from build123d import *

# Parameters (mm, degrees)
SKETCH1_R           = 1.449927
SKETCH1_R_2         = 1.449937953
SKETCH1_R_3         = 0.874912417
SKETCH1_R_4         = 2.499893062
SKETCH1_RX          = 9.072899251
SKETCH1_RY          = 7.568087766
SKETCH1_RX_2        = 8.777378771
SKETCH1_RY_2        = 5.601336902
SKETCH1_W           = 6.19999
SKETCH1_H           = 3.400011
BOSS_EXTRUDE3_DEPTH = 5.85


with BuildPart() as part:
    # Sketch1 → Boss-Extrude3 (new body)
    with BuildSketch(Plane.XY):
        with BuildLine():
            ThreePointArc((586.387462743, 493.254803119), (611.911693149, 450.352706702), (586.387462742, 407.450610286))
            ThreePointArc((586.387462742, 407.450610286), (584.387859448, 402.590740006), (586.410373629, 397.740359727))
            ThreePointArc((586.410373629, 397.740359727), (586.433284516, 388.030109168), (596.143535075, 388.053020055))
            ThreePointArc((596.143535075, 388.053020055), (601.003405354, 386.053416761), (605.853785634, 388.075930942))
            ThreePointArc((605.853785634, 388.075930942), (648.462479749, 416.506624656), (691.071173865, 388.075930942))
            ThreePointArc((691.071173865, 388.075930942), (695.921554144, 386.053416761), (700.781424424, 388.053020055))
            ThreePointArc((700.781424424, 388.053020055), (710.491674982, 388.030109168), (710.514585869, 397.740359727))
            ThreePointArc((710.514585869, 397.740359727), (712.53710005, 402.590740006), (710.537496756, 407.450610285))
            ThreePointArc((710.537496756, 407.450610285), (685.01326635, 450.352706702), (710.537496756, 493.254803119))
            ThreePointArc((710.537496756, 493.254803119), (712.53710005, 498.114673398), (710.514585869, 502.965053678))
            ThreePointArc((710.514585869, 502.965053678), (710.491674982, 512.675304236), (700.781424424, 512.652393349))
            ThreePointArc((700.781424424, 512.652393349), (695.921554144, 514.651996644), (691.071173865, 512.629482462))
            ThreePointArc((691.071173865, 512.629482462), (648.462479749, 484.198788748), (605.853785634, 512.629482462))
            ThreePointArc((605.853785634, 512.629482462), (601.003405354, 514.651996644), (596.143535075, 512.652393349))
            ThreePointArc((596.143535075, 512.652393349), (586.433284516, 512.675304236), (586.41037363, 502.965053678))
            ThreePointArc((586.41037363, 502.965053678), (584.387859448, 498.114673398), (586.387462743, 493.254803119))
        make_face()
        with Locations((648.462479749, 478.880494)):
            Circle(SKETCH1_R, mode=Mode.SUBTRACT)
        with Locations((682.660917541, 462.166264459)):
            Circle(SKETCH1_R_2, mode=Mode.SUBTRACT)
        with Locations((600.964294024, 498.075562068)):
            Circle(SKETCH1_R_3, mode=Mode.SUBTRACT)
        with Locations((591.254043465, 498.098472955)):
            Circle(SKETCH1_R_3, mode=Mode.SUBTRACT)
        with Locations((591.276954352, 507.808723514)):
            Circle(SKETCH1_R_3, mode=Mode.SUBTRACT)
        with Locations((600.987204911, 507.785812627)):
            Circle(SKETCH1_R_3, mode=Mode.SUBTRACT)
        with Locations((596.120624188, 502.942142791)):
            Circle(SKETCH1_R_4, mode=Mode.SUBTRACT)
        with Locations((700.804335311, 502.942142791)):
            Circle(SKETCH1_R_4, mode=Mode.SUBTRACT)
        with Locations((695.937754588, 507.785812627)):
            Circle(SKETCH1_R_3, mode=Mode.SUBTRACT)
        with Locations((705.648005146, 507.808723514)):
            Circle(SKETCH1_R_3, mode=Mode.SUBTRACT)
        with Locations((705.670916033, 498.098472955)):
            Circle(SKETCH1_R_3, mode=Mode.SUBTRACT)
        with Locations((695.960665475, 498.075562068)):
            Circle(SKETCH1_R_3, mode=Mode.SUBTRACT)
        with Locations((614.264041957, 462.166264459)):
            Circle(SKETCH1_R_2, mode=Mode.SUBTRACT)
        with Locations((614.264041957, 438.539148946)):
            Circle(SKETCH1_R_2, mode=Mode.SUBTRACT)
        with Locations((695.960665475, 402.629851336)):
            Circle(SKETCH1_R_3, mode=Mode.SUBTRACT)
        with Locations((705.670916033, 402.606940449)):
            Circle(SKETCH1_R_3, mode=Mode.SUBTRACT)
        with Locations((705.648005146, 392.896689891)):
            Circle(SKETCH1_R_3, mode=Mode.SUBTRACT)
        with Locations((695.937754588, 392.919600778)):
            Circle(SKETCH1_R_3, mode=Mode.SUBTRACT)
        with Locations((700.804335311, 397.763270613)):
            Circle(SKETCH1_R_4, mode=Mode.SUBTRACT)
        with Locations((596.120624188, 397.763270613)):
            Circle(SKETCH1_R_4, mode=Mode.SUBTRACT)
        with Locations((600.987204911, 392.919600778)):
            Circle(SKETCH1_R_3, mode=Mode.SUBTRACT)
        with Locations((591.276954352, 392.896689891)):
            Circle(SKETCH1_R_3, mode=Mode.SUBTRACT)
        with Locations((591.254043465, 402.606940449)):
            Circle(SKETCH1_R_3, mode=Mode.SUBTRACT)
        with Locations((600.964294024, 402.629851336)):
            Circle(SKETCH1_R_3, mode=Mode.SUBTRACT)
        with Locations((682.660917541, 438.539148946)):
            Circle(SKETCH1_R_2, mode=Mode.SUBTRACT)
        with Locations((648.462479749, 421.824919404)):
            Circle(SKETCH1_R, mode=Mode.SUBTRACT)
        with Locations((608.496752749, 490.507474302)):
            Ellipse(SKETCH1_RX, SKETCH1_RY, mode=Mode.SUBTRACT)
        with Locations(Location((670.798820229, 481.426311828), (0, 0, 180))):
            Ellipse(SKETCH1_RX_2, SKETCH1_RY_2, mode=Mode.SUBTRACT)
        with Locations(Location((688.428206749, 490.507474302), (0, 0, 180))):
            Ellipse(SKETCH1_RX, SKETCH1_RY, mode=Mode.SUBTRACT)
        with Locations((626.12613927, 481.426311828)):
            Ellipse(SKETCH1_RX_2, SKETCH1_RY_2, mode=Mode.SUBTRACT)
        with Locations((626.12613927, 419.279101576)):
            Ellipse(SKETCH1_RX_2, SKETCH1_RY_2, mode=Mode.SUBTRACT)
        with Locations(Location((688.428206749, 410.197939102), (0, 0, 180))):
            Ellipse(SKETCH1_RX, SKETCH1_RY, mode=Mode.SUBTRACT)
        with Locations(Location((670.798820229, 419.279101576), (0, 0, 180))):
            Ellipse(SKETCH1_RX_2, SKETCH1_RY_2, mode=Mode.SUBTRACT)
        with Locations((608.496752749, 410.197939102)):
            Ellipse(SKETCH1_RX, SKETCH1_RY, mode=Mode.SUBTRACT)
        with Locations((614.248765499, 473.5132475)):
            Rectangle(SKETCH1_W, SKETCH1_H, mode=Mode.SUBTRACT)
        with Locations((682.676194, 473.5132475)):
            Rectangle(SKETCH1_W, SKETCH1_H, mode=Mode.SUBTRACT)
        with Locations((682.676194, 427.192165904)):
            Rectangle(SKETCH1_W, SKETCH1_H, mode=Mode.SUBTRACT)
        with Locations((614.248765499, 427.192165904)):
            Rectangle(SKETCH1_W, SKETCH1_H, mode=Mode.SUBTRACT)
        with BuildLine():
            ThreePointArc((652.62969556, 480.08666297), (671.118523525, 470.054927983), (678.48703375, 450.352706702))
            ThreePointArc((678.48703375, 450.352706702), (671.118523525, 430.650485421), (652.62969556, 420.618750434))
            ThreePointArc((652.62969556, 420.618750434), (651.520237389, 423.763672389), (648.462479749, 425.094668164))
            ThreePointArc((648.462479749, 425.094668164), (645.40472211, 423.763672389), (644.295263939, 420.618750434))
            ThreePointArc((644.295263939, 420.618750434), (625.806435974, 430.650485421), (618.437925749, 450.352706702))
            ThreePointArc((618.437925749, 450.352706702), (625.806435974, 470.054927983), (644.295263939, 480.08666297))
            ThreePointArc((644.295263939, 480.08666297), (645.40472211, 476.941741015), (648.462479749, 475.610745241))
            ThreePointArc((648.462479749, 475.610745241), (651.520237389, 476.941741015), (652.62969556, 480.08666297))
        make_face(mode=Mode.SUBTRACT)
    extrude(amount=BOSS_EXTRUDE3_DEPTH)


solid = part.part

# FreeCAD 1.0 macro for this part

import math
import FreeCAD as App
import Part
import Sketcher
from FreeCAD import Vector

doc = App.newDocument("Part")
body = doc.addObject("PartDesign::Body", "Body")

# Sketch on XY plane
sketch1 = body.newObject("Sketcher::SketchObject", "Sketch")
sketch1.AttachmentSupport = (doc.getObject("XY_Plane"), [""])
sketch1.MapMode = "FlatFace"
sketch1.addGeometry([
    Part.ArcOfCircle(Part.Circle(Vector(563.093841, 450.352707, 0), Vector(0, 0, 1), 48.817852), math.radians(-61.500326), math.radians(61.500326)),  # 0
    Part.ArcOfCircle(Part.Circle(Vector(591.254043, 402.60694, 0), Vector(0, 0, 1), 6.866203), math.radians(135.135186), math.radians(225.135186)),  # 1
    Part.ArcOfCircle(Part.Circle(Vector(591.276954, 392.89669, 0), Vector(0, 0, 1), 6.866203), math.radians(135.135186), math.radians(315.135186)),  # 2
    Part.ArcOfCircle(Part.Circle(Vector(600.987205, 392.919601, 0), Vector(0, 0, 1), 6.866203), math.radians(-134.864814), math.radians(-44.864814)),  # 3
    Part.ArcOfCircle(Part.Circle(Vector(648.46248, 370.362743, 0), Vector(0, 0, 1), 46.143882), math.radians(22.573521), math.radians(157.426479)),  # 4
    Part.ArcOfCircle(Part.Circle(Vector(695.937755, 392.919601, 0), Vector(0, 0, 1), 6.866203), math.radians(-135.135186), math.radians(-45.135186)),  # 5
    Part.ArcOfCircle(Part.Circle(Vector(705.648005, 392.89669, 0), Vector(0, 0, 1), 6.866203), math.radians(-135.135186), math.radians(44.864814)),  # 6
    Part.ArcOfCircle(Part.Circle(Vector(705.670916, 402.60694, 0), Vector(0, 0, 1), 6.866203), math.radians(-45.135186), math.radians(44.864814)),  # 7
    Part.ArcOfCircle(Part.Circle(Vector(733.831119, 450.352707, 0), Vector(0, 0, 1), 48.817852), math.radians(118.499674), math.radians(241.500326)),  # 8
    Part.ArcOfCircle(Part.Circle(Vector(705.670916, 498.098473, 0), Vector(0, 0, 1), 6.866203), math.radians(-44.864814), math.radians(45.135186)),  # 9
    Part.ArcOfCircle(Part.Circle(Vector(705.648005, 507.808724, 0), Vector(0, 0, 1), 6.866203), math.radians(-44.864814), math.radians(135.135186)),  # 10
    Part.ArcOfCircle(Part.Circle(Vector(695.937755, 507.785813, 0), Vector(0, 0, 1), 6.866203), math.radians(45.135186), math.radians(135.135187)),  # 11
    Part.ArcOfCircle(Part.Circle(Vector(648.46248, 530.342671, 0), Vector(0, 0, 1), 46.143882), math.radians(-157.426479), math.radians(-22.573521)),  # 12
    Part.ArcOfCircle(Part.Circle(Vector(600.987205, 507.785813, 0), Vector(0, 0, 1), 6.866203), math.radians(44.864813), math.radians(134.864814)),  # 13
    Part.ArcOfCircle(Part.Circle(Vector(591.276954, 507.808724, 0), Vector(0, 0, 1), 6.866203), math.radians(44.864814), math.radians(224.864814)),  # 14
    Part.ArcOfCircle(Part.Circle(Vector(591.254043, 498.098473, 0), Vector(0, 0, 1), 6.866203), math.radians(134.864813), math.radians(224.864814)),  # 15
    Part.Circle(Vector(591.276954, 392.89669, 0), Vector(0, 0, 1), 0.874912),  # 16
    Part.Circle(Vector(596.120624, 397.763271, 0), Vector(0, 0, 1), 2.499893),  # 17
    Part.Circle(Vector(600.987205, 392.919601, 0), Vector(0, 0, 1), 0.874912),  # 18
    Part.Circle(Vector(591.254043, 402.60694, 0), Vector(0, 0, 1), 0.874912),  # 19
    Part.Circle(Vector(600.964294, 402.629851, 0), Vector(0, 0, 1), 0.874912),  # 20
    Part.Ellipse(Vector(617.569652, 410.197939, 0), Vector(608.496753, 417.766027, 0), Vector(608.496753, 410.197939, 0)),  # 21
    Part.Ellipse(Vector(634.903518, 419.279102, 0), Vector(626.126139, 424.880438, 0), Vector(626.126139, 419.279102, 0)),  # 22
    Part.LineSegment(Vector(617.34876, 425.49216, 0), Vector(611.14877, 425.49216, 0)),  # 23
    Part.LineSegment(Vector(611.14877, 425.49216, 0), Vector(611.14877, 428.892171, 0)),  # 24
    Part.LineSegment(Vector(611.14877, 428.892171, 0), Vector(617.34876, 428.892171, 0)),  # 25
    Part.LineSegment(Vector(617.34876, 428.892171, 0), Vector(617.34876, 425.49216, 0)),  # 26
    Part.Circle(Vector(614.264042, 438.539149, 0), Vector(0, 0, 1), 1.449938),  # 27
    Part.Circle(Vector(648.46248, 421.824919, 0), Vector(0, 0, 1), 1.449927),  # 28
    Part.Ellipse(Vector(662.021441, 419.279102, 0), Vector(670.79882, 413.677765, 0), Vector(670.79882, 419.279102, 0)),  # 29
    Part.Circle(Vector(695.937755, 392.919601, 0), Vector(0, 0, 1), 0.874912),  # 30
    Part.Circle(Vector(705.648005, 392.89669, 0), Vector(0, 0, 1), 0.874912),  # 31
    Part.Circle(Vector(700.804335, 397.763271, 0), Vector(0, 0, 1), 2.499893),  # 32
    Part.Circle(Vector(695.960665, 402.629851, 0), Vector(0, 0, 1), 0.874912),  # 33
    Part.Circle(Vector(705.670916, 402.60694, 0), Vector(0, 0, 1), 0.874912),  # 34
    Part.Ellipse(Vector(679.355307, 410.197939, 0), Vector(688.428207, 402.629851, 0), Vector(688.428207, 410.197939, 0)),  # 35
    Part.ArcOfCircle(Part.Circle(Vector(648.46248, 479.788607, 0), Vector(0, 0, 1), 4.177861), math.radians(-90), math.radians(4.091063)),  # 36
    Part.ArcOfCircle(Part.Circle(Vector(648.46248, 450.352707, 0), Vector(0, 0, 1), 30.024554), math.radians(0), math.radians(82.021957)),  # 37
    Part.ArcOfCircle(Part.Circle(Vector(648.46248, 450.352707, 0), Vector(0, 0, 1), 30.024554), math.radians(-82.021957), math.radians(0)),  # 38
    Part.ArcOfCircle(Part.Circle(Vector(648.46248, 420.916807, 0), Vector(0, 0, 1), 4.177861), math.radians(-4.091063), math.radians(90)),  # 39
    Part.ArcOfCircle(Part.Circle(Vector(648.46248, 420.916807, 0), Vector(0, 0, 1), 4.177861), math.radians(90), math.radians(184.091063)),  # 40
    Part.ArcOfCircle(Part.Circle(Vector(648.46248, 450.352707, 0), Vector(0, 0, 1), 30.024554), math.radians(180), math.radians(262.021957)),  # 41
    Part.ArcOfCircle(Part.Circle(Vector(648.46248, 450.352707, 0), Vector(0, 0, 1), 30.024554), math.radians(97.978043), math.radians(180)),  # 42
    Part.ArcOfCircle(Part.Circle(Vector(648.46248, 479.788607, 0), Vector(0, 0, 1), 4.177861), math.radians(175.908937), math.radians(270)),  # 43
    Part.LineSegment(Vector(685.776189, 425.49216, 0), Vector(679.576199, 425.49216, 0)),  # 44
    Part.LineSegment(Vector(679.576199, 425.49216, 0), Vector(679.576199, 428.892171, 0)),  # 45
    Part.LineSegment(Vector(679.576199, 428.892171, 0), Vector(685.776189, 428.892171, 0)),  # 46
    Part.LineSegment(Vector(685.776189, 428.892171, 0), Vector(685.776189, 425.49216, 0)),  # 47
    Part.Circle(Vector(682.660918, 438.539149, 0), Vector(0, 0, 1), 1.449938),  # 48
    Part.Circle(Vector(614.264042, 462.166264, 0), Vector(0, 0, 1), 1.449938),  # 49
    Part.LineSegment(Vector(617.34876, 471.813242, 0), Vector(611.14877, 471.813242, 0)),  # 50
    Part.LineSegment(Vector(611.14877, 471.813242, 0), Vector(611.14877, 475.213253, 0)),  # 51
    Part.LineSegment(Vector(611.14877, 475.213253, 0), Vector(617.34876, 475.213253, 0)),  # 52
    Part.LineSegment(Vector(617.34876, 475.213253, 0), Vector(617.34876, 471.813242, 0)),  # 53
    Part.Circle(Vector(648.46248, 478.880494, 0), Vector(0, 0, 1), 1.449927),  # 54
    Part.Ellipse(Vector(617.569652, 490.507474, 0), Vector(608.496753, 498.075562, 0), Vector(608.496753, 490.507474, 0)),  # 55
    Part.Circle(Vector(591.254043, 498.098473, 0), Vector(0, 0, 1), 0.874912),  # 56
    Part.Circle(Vector(600.964294, 498.075562, 0), Vector(0, 0, 1), 0.874912),  # 57
    Part.Circle(Vector(596.120624, 502.942143, 0), Vector(0, 0, 1), 2.499893),  # 58
    Part.Circle(Vector(591.276954, 507.808724, 0), Vector(0, 0, 1), 0.874912),  # 59
    Part.Circle(Vector(600.987205, 507.785813, 0), Vector(0, 0, 1), 0.874912),  # 60
    Part.Ellipse(Vector(634.903518, 481.426312, 0), Vector(626.126139, 487.027649, 0), Vector(626.126139, 481.426312, 0)),  # 61
    Part.Circle(Vector(682.660918, 462.166264, 0), Vector(0, 0, 1), 1.449938),  # 62
    Part.LineSegment(Vector(685.776189, 471.813242, 0), Vector(679.576199, 471.813242, 0)),  # 63
    Part.LineSegment(Vector(679.576199, 471.813242, 0), Vector(679.576199, 475.213253, 0)),  # 64
    Part.LineSegment(Vector(679.576199, 475.213253, 0), Vector(685.776189, 475.213253, 0)),  # 65
    Part.LineSegment(Vector(685.776189, 475.213253, 0), Vector(685.776189, 471.813242, 0)),  # 66
    Part.Ellipse(Vector(662.021441, 481.426312, 0), Vector(670.79882, 475.824975, 0), Vector(670.79882, 481.426312, 0)),  # 67
    Part.Ellipse(Vector(679.355307, 490.507474, 0), Vector(688.428207, 482.939387, 0), Vector(688.428207, 490.507474, 0)),  # 68
    Part.Circle(Vector(695.960665, 498.075562, 0), Vector(0, 0, 1), 0.874912),  # 69
    Part.Circle(Vector(705.670916, 498.098473, 0), Vector(0, 0, 1), 0.874912),  # 70
    Part.Circle(Vector(695.937755, 507.785813, 0), Vector(0, 0, 1), 0.874912),  # 71
    Part.Circle(Vector(700.804335, 502.942143, 0), Vector(0, 0, 1), 2.499893),  # 72
    Part.Circle(Vector(705.648005, 507.808724, 0), Vector(0, 0, 1), 0.874912),  # 73
], False)
sketch1.addConstraint([
    Sketcher.Constraint("Block", 21),
    Sketcher.Constraint("Block", 22),
    Sketcher.Constraint("Block", 29),
    Sketcher.Constraint("Block", 35),
    Sketcher.Constraint("Block", 55),
    Sketcher.Constraint("Block", 61),
    Sketcher.Constraint("Block", 67),
    Sketcher.Constraint("Block", 68),
    Sketcher.Constraint("Coincident", 0, 1, 1, 1),
    Sketcher.Constraint("Coincident", 1, 2, 2, 1),
    Sketcher.Constraint("Coincident", 2, 2, 3, 1),
    Sketcher.Constraint("Coincident", 3, 2, 4, 2),
    Sketcher.Constraint("Coincident", 4, 1, 5, 1),
    Sketcher.Constraint("Coincident", 5, 2, 6, 1),
    Sketcher.Constraint("Coincident", 6, 2, 7, 1),
    Sketcher.Constraint("Coincident", 7, 2, 8, 2),
    Sketcher.Constraint("Coincident", 8, 1, 9, 1),
    Sketcher.Constraint("Coincident", 9, 2, 10, 1),
    Sketcher.Constraint("Coincident", 10, 2, 11, 1),
    Sketcher.Constraint("Coincident", 11, 2, 12, 2),
    Sketcher.Constraint("Coincident", 12, 1, 13, 1),
    Sketcher.Constraint("Coincident", 13, 2, 14, 1),
    Sketcher.Constraint("Coincident", 14, 2, 15, 1),
    Sketcher.Constraint("Coincident", 15, 2, 0, 2),
    Sketcher.Constraint("Coincident", 23, 2, 24, 1),
    Sketcher.Constraint("Coincident", 24, 2, 25, 1),
    Sketcher.Constraint("Coincident", 25, 2, 26, 1),
    Sketcher.Constraint("Coincident", 26, 2, 23, 1),
    Sketcher.Constraint("Coincident", 36, 2, 37, 2),
    Sketcher.Constraint("Tangent", 37, 1, 38, 2),
    Sketcher.Constraint("Coincident", 38, 1, 39, 1),
    Sketcher.Constraint("Tangent", 39, 2, 40, 1),
    Sketcher.Constraint("Coincident", 40, 2, 41, 2),
    Sketcher.Constraint("Tangent", 41, 1, 42, 2),
    Sketcher.Constraint("Coincident", 42, 1, 43, 1),
    Sketcher.Constraint("Tangent", 43, 2, 36, 1),
    Sketcher.Constraint("Coincident", 44, 2, 45, 1),
    Sketcher.Constraint("Coincident", 45, 2, 46, 1),
    Sketcher.Constraint("Coincident", 46, 2, 47, 1),
    Sketcher.Constraint("Coincident", 47, 2, 44, 1),
    Sketcher.Constraint("Coincident", 50, 2, 51, 1),
    Sketcher.Constraint("Coincident", 51, 2, 52, 1),
    Sketcher.Constraint("Coincident", 52, 2, 53, 1),
    Sketcher.Constraint("Coincident", 53, 2, 50, 1),
    Sketcher.Constraint("Coincident", 63, 2, 64, 1),
    Sketcher.Constraint("Coincident", 64, 2, 65, 1),
    Sketcher.Constraint("Coincident", 65, 2, 66, 1),
    Sketcher.Constraint("Coincident", 66, 2, 63, 1),
    Sketcher.Constraint("Horizontal", 23),
    Sketcher.Constraint("Vertical", 24),
    Sketcher.Constraint("Horizontal", 25),
    Sketcher.Constraint("Vertical", 26),
    Sketcher.Constraint("Horizontal", 44),
    Sketcher.Constraint("Vertical", 45),
    Sketcher.Constraint("Horizontal", 46),
    Sketcher.Constraint("Vertical", 47),
    Sketcher.Constraint("Horizontal", 50),
    Sketcher.Constraint("Vertical", 51),
    Sketcher.Constraint("Horizontal", 52),
    Sketcher.Constraint("Vertical", 53),
    Sketcher.Constraint("Horizontal", 63),
    Sketcher.Constraint("Vertical", 64),
    Sketcher.Constraint("Horizontal", 65),
    Sketcher.Constraint("Vertical", 66),
    Sketcher.Constraint("Coincident", 16, 3, 2, 3),
    Sketcher.Constraint("Coincident", 18, 3, 3, 3),
    Sketcher.Constraint("Coincident", 19, 3, 1, 3),
    Sketcher.Constraint("Coincident", 30, 3, 5, 3),
    Sketcher.Constraint("Coincident", 31, 3, 6, 3),
    Sketcher.Constraint("Coincident", 34, 3, 7, 3),
    Sketcher.Constraint("Coincident", 41, 3, 37, 3),
    Sketcher.Constraint("Coincident", 56, 3, 15, 3),
    Sketcher.Constraint("Coincident", 59, 3, 14, 3),
    Sketcher.Constraint("Coincident", 60, 3, 13, 3),
    Sketcher.Constraint("Coincident", 70, 3, 9, 3),
    Sketcher.Constraint("Coincident", 71, 3, 11, 3),
    Sketcher.Constraint("Coincident", 73, 3, 10, 3),
    Sketcher.Constraint("Equal", 1, 2),
    Sketcher.Constraint("Equal", 2, 3),
    Sketcher.Constraint("Equal", 3, 5),
    Sketcher.Constraint("Equal", 5, 6),
    Sketcher.Constraint("Equal", 6, 7),
    Sketcher.Constraint("Equal", 0, 8),
    Sketcher.Constraint("Equal", 7, 9),
    Sketcher.Constraint("Equal", 9, 10),
    Sketcher.Constraint("Equal", 10, 11),
    Sketcher.Constraint("Equal", 4, 12),
    Sketcher.Constraint("Equal", 11, 13),
    Sketcher.Constraint("Equal", 13, 14),
    Sketcher.Constraint("Equal", 14, 15),
    Sketcher.Constraint("Equal", 16, 18),
    Sketcher.Constraint("Equal", 18, 19),
    Sketcher.Constraint("Equal", 19, 20),
    Sketcher.Constraint("Equal", 20, 30),
    Sketcher.Constraint("Equal", 30, 31),
    Sketcher.Constraint("Equal", 17, 32),
    Sketcher.Constraint("Equal", 31, 33),
    Sketcher.Constraint("Equal", 33, 34),
    Sketcher.Constraint("Equal", 37, 38),
    Sketcher.Constraint("Equal", 36, 39),
    Sketcher.Constraint("Equal", 39, 40),
    Sketcher.Constraint("Equal", 38, 41),
    Sketcher.Constraint("Equal", 41, 42),
    Sketcher.Constraint("Equal", 40, 43),
    Sketcher.Constraint("Equal", 27, 48),
    Sketcher.Constraint("Equal", 48, 49),
    Sketcher.Constraint("Equal", 28, 54),
    Sketcher.Constraint("Equal", 34, 56),
    Sketcher.Constraint("Equal", 56, 57),
    Sketcher.Constraint("Equal", 32, 58),
    Sketcher.Constraint("Equal", 57, 59),
    Sketcher.Constraint("Equal", 59, 60),
    Sketcher.Constraint("Equal", 49, 62),
    Sketcher.Constraint("Equal", 60, 69),
    Sketcher.Constraint("Equal", 69, 70),
    Sketcher.Constraint("Equal", 70, 71),
    Sketcher.Constraint("Equal", 58, 72),
    Sketcher.Constraint("Equal", 71, 73),
    Sketcher.Constraint("Horizontal", 3, 3, 5, 3),
    Sketcher.Constraint("Horizontal", 2, 3, 6, 3),
    Sketcher.Constraint("Horizontal", 1, 3, 7, 3),
    Sketcher.Constraint("Horizontal", 0, 3, 8, 3),
    Sketcher.Constraint("Horizontal", 11, 3, 13, 3),
    Sketcher.Constraint("Horizontal", 10, 3, 14, 3),
    Sketcher.Constraint("Horizontal", 9, 3, 15, 3),
    Sketcher.Constraint("Horizontal", 17, 3, 32, 3),
    Sketcher.Constraint("Horizontal", 20, 3, 33, 3),
    Sketcher.Constraint("Horizontal", 8, 3, 37, 3),
    Sketcher.Constraint("Horizontal", 27, 3, 48, 3),
    Sketcher.Constraint("Horizontal", 49, 3, 62, 3),
    Sketcher.Constraint("Horizontal", 57, 3, 69, 3),
    Sketcher.Constraint("Horizontal", 58, 3, 72, 3),
    Sketcher.Constraint("Horizontal", 3, 2, 4, 1),
    Sketcher.Constraint("Horizontal", 2, 2, 5, 2),
    Sketcher.Constraint("Horizontal", 1, 2, 6, 2),
    Sketcher.Constraint("Horizontal", 0, 1, 7, 2),
    Sketcher.Constraint("Horizontal", 11, 2, 12, 1),
    Sketcher.Constraint("Horizontal", 10, 2, 13, 2),
    Sketcher.Constraint("Horizontal", 9, 2, 14, 2),
    Sketcher.Constraint("Horizontal", 8, 1, 15, 2),
    Sketcher.Constraint("Horizontal", 42, 3, 37, 1),
    Sketcher.Constraint("Horizontal", 38, 1, 40, 2),
    Sketcher.Constraint("Horizontal", 37, 1, 41, 1),
    Sketcher.Constraint("Horizontal", 36, 2, 42, 1),
    Sketcher.Constraint("Horizontal", 26, 2, 44, 2),
    Sketcher.Constraint("Horizontal", 25, 2, 45, 2),
    Sketcher.Constraint("Horizontal", 53, 2, 63, 2),
    Sketcher.Constraint("Horizontal", 52, 2, 64, 2),
    Sketcher.Constraint("Vertical", 7, 3, 9, 3),
    Sketcher.Constraint("Vertical", 6, 3, 10, 3),
    Sketcher.Constraint("Vertical", 5, 3, 11, 3),
    Sketcher.Constraint("Vertical", 12, 3, 28, 3),
    Sketcher.Constraint("Vertical", 28, 3, 36, 3),
    Sketcher.Constraint("Vertical", 27, 3, 49, 3),
    Sketcher.Constraint("Vertical", 43, 3, 54, 3),
    Sketcher.Constraint("Vertical", 20, 3, 57, 3),
    Sketcher.Constraint("Vertical", 17, 3, 58, 3),
    Sketcher.Constraint("Vertical", 48, 3, 62, 3),
    Sketcher.Constraint("Vertical", 33, 3, 69, 3),
    Sketcher.Constraint("Vertical", 32, 3, 72, 3),
    Sketcher.Constraint("Vertical", 7, 2, 8, 1),
    Sketcher.Constraint("Vertical", 6, 2, 9, 2),
    Sketcher.Constraint("Vertical", 5, 2, 10, 2),
    Sketcher.Constraint("Vertical", 4, 1, 11, 2),
    Sketcher.Constraint("Vertical", 36, 2, 38, 1),
    Sketcher.Constraint("Vertical", 54, 3, 39, 2),
    Sketcher.Constraint("Vertical", 39, 2, 43, 2),
    Sketcher.Constraint("Vertical", 24, 2, 50, 2),
    Sketcher.Constraint("Vertical", 26, 2, 52, 2),
    Sketcher.Constraint("Vertical", 45, 2, 63, 2),
    Sketcher.Constraint("Vertical", 47, 2, 65, 2),
    Sketcher.Constraint("Equal", 25, 44),
    Sketcher.Constraint("Equal", 47, 51),
    Sketcher.Constraint("Radius", 36, 4.177861),
    Sketcher.Constraint("Diameter", 16, 1.749825),
    Sketcher.Constraint("Diameter", 17, 4.999786),
    Sketcher.Constraint("Diameter", 27, 2.899876),
    Sketcher.Constraint("Diameter", 28, 2.899854),
    Sketcher.Constraint("Radius", 0, 48.817852),
    Sketcher.Constraint("Radius", 1, 6.866203),
    Sketcher.Constraint("Radius", 4, 46.143882),
    Sketcher.Constraint("Radius", 37, 30.024554),
    Sketcher.Constraint("DistanceX", 23, 2, 23, 1, 6.19999),
    Sketcher.Constraint("DistanceY", 24, 1, 24, 2, 3.400011),
    Sketcher.Constraint("DistanceY", -1, 1, 3, 3, 392.919601),
    Sketcher.Constraint("DistanceX", -1, 1, 44, 2, 679.576199),
    Sketcher.Constraint("DistanceX", -1, 1, 0, 3, 563.093841),
    Sketcher.Constraint("DistanceY", -1, 1, 1, 3, 402.60694),
    Sketcher.Constraint("DistanceY", -1, 1, 2, 3, 392.89669),
    Sketcher.Constraint("DistanceX", -1, 1, 4, 3, 648.46248),
    Sketcher.Constraint("DistanceY", -1, 1, 12, 3, 530.342671),
    Sketcher.Constraint("DistanceY", -1, 1, 17, 3, 397.763271),
    Sketcher.Constraint("DistanceY", -1, 1, 20, 3, 402.629851),
    Sketcher.Constraint("DistanceX", -1, 1, 27, 3, 614.264042),
    Sketcher.Constraint("DistanceY", -1, 1, 27, 3, 438.539149),
    Sketcher.Constraint("DistanceY", -1, 1, 28, 3, 421.824919),
    Sketcher.Constraint("DistanceY", -1, 1, 0, 1, 407.45061),
    Sketcher.Constraint("DistanceY", -1, 1, 1, 2, 397.74036),
    Sketcher.Constraint("DistanceY", -1, 1, 2, 2, 388.05302),
    Sketcher.Constraint("DistanceY", -1, 1, 3, 2, 388.075931),
    Sketcher.Constraint("DistanceX", -1, 1, 23, 2, 611.14877),
    Sketcher.Constraint("DistanceY", -1, 1, 23, 2, 425.49216),
    Sketcher.Constraint("DistanceY", -1, 1, 39, 2, 425.094668),
    Sketcher.Constraint("DistanceY", -1, 1, 50, 2, 471.813242),
    Sketcher.Constraint("DistanceX", -1, 1, 17, 3, 596.120624),
    Sketcher.Constraint("DistanceX", -1, 1, 20, 3, 600.964294),
    Sketcher.Constraint("DistanceX", -1, 1, 32, 3, 700.804335),
    Sketcher.Constraint("DistanceX", -1, 1, 33, 3, 695.960665),
    Sketcher.Constraint("DistanceX", -1, 1, 48, 3, 682.660918),
    Sketcher.Constraint("DistanceY", -1, 1, 49, 3, 462.166264),
    Sketcher.Constraint("DistanceY", -1, 1, 54, 3, 478.880494),
    Sketcher.Constraint("DistanceY", -1, 1, 57, 3, 498.075562),
    Sketcher.Constraint("DistanceY", -1, 1, 58, 3, 502.942143),
])
pad1 = body.newObject("PartDesign::Pad", "Pad")
pad1.Profile = sketch1
pad1.Length = 5.85

doc.recompute()
